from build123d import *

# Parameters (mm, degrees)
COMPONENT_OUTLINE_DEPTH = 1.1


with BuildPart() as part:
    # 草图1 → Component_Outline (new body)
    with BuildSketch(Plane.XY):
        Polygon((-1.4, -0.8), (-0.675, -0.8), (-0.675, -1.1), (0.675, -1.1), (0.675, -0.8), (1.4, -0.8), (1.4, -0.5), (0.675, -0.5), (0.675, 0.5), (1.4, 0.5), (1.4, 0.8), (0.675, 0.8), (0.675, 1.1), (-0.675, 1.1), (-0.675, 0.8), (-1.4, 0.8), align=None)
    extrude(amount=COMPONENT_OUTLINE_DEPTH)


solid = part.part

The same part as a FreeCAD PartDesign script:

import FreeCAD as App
import Part
import Sketcher
from FreeCAD import Vector
Q = App.Units.Quantity

doc = App.newDocument("Part")
body = doc.addObject("PartDesign::Body", "Body")

sketch1 = body.newObject("Sketcher::SketchObject", "Sketch")
sketch1.AttachmentSupport = (doc.getObject("XY_Plane"), [""])
sketch1.MapMode = "FlatFace"
sketch1.addGeometry([
    Part.LineSegment(Vector(-1.4, -0.8, 0), Vector(-0.675, -0.8, 0)),
    Part.LineSegment(Vector(-0.675, -0.8, 0), Vector(-0.675, -1.1, 0)),
    Part.LineSegment(Vector(-0.675, -1.1, 0), Vector(0.675, -1.1, 0)),
    Part.LineSegment(Vector(0.675, -1.1, 0), Vector(0.675, -0.8, 0)),
    Part.LineSegment(Vector(0.675, -0.8, 0), Vector(1.4, -0.8, 0)),
    Part.LineSegment(Vector(1.4, -0.8, 0), Vector(1.4, -0.5, 0)),
    Part.LineSegment(Vector(1.4, -0.5, 0), Vector(0.675, -0.5, 0)),
    Part.LineSegment(Vector(0.675, -0.5, 0), Vector(0.675, 0.5, 0)),
    Part.LineSegment(Vector(0.675, 0.5, 0), Vector(1.4, 0.5, 0)),
    Part.LineSegment(Vector(1.4, 0.5, 0), Vector(1.4, 0.8, 0)),
    Part.LineSegment(Vector(1.4, 0.8, 0), Vector(0.675, 0.8, 0)),
    Part.LineSegment(Vector(0.675, 0.8, 0), Vector(0.675, 1.1, 0)),
    Part.LineSegment(Vector(0.675, 1.1, 0), Vector(-0.675, 1.1, 0)),
    Part.LineSegment(Vector(-0.675, 1.1, 0), Vector(-0.675, 0.8, 0)),
    Part.LineSegment(Vector(-0.675, 0.8, 0), Vector(-1.4, 0.8, 0)),
    Part.LineSegment(Vector(-1.4, 0.8, 0), Vector(-1.4, -0.8, 0)),
], False)
sketch1.addConstraint([
    Sketcher.Constraint("Coincident", 0, 2, 1, 1),
    Sketcher.Constraint("Coincident", 1, 2, 2, 1),
    Sketcher.Constraint("Coincident", 2, 2, 3, 1),
    Sketcher.Constraint("Coincident", 3, 2, 4, 1),
    Sketcher.Constraint("Coincident", 4, 2, 5, 1),
    Sketcher.Constraint("Coincident", 5, 2, 6, 1),
    Sketcher.Constraint("Coincident", 6, 2, 7, 1),
    Sketcher.Constraint("Coincident", 7, 2, 8, 1),
    Sketcher.Constraint("Coincident", 8, 2, 9, 1),
    Sketcher.Constraint("Coincident", 9, 2, 10, 1),
    Sketcher.Constraint("Coincident", 10, 2, 11, 1),
    Sketcher.Constraint("Coincident", 11, 2, 12, 1),
    Sketcher.Constraint("Coincident", 12, 2, 13, 1),
    Sketcher.Constraint("Coincident", 13, 2, 14, 1),
    Sketcher.Constraint("Coincident", 14, 2, 15, 1),
    Sketcher.Constraint("Coincident", 15, 2, 0, 1),
    Sketcher.Constraint("Horizontal", 0),
    Sketcher.Constraint("Vertical", 1),
    Sketcher.Constraint("Horizontal", 2),
    Sketcher.Constraint("Vertical", 3),
    Sketcher.Constraint("Horizontal", 4),
    Sketcher.Constraint("Vertical", 5),
    Sketcher.Constraint("Horizontal", 6),
    Sketcher.Constraint("Vertical", 7),
    Sketcher.Constraint("Horizontal", 8),
    Sketcher.Constraint("Vertical", 9),
    Sketcher.Constraint("Horizontal", 10),
    Sketcher.Constraint("Vertical", 11),
    Sketcher.Constraint("Horizontal", 12),
    Sketcher.Constraint("Vertical", 13),
    Sketcher.Constraint("Horizontal", 14),
    Sketcher.Constraint("Vertical", 15),
    Sketcher.Constraint("Symmetric", 0, 2, 10, 2, -1, 1),
    Sketcher.Constraint("Symmetric", 2, 2, 12, 2, -1, 1),
    Sketcher.Constraint("Symmetric", 4, 2, 14, 2, -1, 1),
    Sketcher.Constraint("Symmetric", 0, 2, 3, 2, -2),
    Sketcher.Constraint("Symmetric", 5, 2, 8, 2, -1),
    Sketcher.Constraint("Vertical", 3, 2, 6, 2),
    Sketcher.Constraint("Equal", 3, 5),
    Sketcher.Constraint("DistanceY", 7, 1, 7, 2, Q("1 mm")),
    Sketcher.Constraint("DistanceY", 1, 2, 1, 1, Q("0.3 mm")),
    Sketcher.Constraint("DistanceX", 2, 1, 2, 2, Q("1.35 mm")),
    Sketcher.Constraint("DistanceX", -1, 1, 4, 2, Q("1.4 mm")),
])
pad1 = body.newObject("PartDesign::Pad", "Pad")
pad1.Profile = sketch1
pad1.Length = 1.1

doc.recompute()
